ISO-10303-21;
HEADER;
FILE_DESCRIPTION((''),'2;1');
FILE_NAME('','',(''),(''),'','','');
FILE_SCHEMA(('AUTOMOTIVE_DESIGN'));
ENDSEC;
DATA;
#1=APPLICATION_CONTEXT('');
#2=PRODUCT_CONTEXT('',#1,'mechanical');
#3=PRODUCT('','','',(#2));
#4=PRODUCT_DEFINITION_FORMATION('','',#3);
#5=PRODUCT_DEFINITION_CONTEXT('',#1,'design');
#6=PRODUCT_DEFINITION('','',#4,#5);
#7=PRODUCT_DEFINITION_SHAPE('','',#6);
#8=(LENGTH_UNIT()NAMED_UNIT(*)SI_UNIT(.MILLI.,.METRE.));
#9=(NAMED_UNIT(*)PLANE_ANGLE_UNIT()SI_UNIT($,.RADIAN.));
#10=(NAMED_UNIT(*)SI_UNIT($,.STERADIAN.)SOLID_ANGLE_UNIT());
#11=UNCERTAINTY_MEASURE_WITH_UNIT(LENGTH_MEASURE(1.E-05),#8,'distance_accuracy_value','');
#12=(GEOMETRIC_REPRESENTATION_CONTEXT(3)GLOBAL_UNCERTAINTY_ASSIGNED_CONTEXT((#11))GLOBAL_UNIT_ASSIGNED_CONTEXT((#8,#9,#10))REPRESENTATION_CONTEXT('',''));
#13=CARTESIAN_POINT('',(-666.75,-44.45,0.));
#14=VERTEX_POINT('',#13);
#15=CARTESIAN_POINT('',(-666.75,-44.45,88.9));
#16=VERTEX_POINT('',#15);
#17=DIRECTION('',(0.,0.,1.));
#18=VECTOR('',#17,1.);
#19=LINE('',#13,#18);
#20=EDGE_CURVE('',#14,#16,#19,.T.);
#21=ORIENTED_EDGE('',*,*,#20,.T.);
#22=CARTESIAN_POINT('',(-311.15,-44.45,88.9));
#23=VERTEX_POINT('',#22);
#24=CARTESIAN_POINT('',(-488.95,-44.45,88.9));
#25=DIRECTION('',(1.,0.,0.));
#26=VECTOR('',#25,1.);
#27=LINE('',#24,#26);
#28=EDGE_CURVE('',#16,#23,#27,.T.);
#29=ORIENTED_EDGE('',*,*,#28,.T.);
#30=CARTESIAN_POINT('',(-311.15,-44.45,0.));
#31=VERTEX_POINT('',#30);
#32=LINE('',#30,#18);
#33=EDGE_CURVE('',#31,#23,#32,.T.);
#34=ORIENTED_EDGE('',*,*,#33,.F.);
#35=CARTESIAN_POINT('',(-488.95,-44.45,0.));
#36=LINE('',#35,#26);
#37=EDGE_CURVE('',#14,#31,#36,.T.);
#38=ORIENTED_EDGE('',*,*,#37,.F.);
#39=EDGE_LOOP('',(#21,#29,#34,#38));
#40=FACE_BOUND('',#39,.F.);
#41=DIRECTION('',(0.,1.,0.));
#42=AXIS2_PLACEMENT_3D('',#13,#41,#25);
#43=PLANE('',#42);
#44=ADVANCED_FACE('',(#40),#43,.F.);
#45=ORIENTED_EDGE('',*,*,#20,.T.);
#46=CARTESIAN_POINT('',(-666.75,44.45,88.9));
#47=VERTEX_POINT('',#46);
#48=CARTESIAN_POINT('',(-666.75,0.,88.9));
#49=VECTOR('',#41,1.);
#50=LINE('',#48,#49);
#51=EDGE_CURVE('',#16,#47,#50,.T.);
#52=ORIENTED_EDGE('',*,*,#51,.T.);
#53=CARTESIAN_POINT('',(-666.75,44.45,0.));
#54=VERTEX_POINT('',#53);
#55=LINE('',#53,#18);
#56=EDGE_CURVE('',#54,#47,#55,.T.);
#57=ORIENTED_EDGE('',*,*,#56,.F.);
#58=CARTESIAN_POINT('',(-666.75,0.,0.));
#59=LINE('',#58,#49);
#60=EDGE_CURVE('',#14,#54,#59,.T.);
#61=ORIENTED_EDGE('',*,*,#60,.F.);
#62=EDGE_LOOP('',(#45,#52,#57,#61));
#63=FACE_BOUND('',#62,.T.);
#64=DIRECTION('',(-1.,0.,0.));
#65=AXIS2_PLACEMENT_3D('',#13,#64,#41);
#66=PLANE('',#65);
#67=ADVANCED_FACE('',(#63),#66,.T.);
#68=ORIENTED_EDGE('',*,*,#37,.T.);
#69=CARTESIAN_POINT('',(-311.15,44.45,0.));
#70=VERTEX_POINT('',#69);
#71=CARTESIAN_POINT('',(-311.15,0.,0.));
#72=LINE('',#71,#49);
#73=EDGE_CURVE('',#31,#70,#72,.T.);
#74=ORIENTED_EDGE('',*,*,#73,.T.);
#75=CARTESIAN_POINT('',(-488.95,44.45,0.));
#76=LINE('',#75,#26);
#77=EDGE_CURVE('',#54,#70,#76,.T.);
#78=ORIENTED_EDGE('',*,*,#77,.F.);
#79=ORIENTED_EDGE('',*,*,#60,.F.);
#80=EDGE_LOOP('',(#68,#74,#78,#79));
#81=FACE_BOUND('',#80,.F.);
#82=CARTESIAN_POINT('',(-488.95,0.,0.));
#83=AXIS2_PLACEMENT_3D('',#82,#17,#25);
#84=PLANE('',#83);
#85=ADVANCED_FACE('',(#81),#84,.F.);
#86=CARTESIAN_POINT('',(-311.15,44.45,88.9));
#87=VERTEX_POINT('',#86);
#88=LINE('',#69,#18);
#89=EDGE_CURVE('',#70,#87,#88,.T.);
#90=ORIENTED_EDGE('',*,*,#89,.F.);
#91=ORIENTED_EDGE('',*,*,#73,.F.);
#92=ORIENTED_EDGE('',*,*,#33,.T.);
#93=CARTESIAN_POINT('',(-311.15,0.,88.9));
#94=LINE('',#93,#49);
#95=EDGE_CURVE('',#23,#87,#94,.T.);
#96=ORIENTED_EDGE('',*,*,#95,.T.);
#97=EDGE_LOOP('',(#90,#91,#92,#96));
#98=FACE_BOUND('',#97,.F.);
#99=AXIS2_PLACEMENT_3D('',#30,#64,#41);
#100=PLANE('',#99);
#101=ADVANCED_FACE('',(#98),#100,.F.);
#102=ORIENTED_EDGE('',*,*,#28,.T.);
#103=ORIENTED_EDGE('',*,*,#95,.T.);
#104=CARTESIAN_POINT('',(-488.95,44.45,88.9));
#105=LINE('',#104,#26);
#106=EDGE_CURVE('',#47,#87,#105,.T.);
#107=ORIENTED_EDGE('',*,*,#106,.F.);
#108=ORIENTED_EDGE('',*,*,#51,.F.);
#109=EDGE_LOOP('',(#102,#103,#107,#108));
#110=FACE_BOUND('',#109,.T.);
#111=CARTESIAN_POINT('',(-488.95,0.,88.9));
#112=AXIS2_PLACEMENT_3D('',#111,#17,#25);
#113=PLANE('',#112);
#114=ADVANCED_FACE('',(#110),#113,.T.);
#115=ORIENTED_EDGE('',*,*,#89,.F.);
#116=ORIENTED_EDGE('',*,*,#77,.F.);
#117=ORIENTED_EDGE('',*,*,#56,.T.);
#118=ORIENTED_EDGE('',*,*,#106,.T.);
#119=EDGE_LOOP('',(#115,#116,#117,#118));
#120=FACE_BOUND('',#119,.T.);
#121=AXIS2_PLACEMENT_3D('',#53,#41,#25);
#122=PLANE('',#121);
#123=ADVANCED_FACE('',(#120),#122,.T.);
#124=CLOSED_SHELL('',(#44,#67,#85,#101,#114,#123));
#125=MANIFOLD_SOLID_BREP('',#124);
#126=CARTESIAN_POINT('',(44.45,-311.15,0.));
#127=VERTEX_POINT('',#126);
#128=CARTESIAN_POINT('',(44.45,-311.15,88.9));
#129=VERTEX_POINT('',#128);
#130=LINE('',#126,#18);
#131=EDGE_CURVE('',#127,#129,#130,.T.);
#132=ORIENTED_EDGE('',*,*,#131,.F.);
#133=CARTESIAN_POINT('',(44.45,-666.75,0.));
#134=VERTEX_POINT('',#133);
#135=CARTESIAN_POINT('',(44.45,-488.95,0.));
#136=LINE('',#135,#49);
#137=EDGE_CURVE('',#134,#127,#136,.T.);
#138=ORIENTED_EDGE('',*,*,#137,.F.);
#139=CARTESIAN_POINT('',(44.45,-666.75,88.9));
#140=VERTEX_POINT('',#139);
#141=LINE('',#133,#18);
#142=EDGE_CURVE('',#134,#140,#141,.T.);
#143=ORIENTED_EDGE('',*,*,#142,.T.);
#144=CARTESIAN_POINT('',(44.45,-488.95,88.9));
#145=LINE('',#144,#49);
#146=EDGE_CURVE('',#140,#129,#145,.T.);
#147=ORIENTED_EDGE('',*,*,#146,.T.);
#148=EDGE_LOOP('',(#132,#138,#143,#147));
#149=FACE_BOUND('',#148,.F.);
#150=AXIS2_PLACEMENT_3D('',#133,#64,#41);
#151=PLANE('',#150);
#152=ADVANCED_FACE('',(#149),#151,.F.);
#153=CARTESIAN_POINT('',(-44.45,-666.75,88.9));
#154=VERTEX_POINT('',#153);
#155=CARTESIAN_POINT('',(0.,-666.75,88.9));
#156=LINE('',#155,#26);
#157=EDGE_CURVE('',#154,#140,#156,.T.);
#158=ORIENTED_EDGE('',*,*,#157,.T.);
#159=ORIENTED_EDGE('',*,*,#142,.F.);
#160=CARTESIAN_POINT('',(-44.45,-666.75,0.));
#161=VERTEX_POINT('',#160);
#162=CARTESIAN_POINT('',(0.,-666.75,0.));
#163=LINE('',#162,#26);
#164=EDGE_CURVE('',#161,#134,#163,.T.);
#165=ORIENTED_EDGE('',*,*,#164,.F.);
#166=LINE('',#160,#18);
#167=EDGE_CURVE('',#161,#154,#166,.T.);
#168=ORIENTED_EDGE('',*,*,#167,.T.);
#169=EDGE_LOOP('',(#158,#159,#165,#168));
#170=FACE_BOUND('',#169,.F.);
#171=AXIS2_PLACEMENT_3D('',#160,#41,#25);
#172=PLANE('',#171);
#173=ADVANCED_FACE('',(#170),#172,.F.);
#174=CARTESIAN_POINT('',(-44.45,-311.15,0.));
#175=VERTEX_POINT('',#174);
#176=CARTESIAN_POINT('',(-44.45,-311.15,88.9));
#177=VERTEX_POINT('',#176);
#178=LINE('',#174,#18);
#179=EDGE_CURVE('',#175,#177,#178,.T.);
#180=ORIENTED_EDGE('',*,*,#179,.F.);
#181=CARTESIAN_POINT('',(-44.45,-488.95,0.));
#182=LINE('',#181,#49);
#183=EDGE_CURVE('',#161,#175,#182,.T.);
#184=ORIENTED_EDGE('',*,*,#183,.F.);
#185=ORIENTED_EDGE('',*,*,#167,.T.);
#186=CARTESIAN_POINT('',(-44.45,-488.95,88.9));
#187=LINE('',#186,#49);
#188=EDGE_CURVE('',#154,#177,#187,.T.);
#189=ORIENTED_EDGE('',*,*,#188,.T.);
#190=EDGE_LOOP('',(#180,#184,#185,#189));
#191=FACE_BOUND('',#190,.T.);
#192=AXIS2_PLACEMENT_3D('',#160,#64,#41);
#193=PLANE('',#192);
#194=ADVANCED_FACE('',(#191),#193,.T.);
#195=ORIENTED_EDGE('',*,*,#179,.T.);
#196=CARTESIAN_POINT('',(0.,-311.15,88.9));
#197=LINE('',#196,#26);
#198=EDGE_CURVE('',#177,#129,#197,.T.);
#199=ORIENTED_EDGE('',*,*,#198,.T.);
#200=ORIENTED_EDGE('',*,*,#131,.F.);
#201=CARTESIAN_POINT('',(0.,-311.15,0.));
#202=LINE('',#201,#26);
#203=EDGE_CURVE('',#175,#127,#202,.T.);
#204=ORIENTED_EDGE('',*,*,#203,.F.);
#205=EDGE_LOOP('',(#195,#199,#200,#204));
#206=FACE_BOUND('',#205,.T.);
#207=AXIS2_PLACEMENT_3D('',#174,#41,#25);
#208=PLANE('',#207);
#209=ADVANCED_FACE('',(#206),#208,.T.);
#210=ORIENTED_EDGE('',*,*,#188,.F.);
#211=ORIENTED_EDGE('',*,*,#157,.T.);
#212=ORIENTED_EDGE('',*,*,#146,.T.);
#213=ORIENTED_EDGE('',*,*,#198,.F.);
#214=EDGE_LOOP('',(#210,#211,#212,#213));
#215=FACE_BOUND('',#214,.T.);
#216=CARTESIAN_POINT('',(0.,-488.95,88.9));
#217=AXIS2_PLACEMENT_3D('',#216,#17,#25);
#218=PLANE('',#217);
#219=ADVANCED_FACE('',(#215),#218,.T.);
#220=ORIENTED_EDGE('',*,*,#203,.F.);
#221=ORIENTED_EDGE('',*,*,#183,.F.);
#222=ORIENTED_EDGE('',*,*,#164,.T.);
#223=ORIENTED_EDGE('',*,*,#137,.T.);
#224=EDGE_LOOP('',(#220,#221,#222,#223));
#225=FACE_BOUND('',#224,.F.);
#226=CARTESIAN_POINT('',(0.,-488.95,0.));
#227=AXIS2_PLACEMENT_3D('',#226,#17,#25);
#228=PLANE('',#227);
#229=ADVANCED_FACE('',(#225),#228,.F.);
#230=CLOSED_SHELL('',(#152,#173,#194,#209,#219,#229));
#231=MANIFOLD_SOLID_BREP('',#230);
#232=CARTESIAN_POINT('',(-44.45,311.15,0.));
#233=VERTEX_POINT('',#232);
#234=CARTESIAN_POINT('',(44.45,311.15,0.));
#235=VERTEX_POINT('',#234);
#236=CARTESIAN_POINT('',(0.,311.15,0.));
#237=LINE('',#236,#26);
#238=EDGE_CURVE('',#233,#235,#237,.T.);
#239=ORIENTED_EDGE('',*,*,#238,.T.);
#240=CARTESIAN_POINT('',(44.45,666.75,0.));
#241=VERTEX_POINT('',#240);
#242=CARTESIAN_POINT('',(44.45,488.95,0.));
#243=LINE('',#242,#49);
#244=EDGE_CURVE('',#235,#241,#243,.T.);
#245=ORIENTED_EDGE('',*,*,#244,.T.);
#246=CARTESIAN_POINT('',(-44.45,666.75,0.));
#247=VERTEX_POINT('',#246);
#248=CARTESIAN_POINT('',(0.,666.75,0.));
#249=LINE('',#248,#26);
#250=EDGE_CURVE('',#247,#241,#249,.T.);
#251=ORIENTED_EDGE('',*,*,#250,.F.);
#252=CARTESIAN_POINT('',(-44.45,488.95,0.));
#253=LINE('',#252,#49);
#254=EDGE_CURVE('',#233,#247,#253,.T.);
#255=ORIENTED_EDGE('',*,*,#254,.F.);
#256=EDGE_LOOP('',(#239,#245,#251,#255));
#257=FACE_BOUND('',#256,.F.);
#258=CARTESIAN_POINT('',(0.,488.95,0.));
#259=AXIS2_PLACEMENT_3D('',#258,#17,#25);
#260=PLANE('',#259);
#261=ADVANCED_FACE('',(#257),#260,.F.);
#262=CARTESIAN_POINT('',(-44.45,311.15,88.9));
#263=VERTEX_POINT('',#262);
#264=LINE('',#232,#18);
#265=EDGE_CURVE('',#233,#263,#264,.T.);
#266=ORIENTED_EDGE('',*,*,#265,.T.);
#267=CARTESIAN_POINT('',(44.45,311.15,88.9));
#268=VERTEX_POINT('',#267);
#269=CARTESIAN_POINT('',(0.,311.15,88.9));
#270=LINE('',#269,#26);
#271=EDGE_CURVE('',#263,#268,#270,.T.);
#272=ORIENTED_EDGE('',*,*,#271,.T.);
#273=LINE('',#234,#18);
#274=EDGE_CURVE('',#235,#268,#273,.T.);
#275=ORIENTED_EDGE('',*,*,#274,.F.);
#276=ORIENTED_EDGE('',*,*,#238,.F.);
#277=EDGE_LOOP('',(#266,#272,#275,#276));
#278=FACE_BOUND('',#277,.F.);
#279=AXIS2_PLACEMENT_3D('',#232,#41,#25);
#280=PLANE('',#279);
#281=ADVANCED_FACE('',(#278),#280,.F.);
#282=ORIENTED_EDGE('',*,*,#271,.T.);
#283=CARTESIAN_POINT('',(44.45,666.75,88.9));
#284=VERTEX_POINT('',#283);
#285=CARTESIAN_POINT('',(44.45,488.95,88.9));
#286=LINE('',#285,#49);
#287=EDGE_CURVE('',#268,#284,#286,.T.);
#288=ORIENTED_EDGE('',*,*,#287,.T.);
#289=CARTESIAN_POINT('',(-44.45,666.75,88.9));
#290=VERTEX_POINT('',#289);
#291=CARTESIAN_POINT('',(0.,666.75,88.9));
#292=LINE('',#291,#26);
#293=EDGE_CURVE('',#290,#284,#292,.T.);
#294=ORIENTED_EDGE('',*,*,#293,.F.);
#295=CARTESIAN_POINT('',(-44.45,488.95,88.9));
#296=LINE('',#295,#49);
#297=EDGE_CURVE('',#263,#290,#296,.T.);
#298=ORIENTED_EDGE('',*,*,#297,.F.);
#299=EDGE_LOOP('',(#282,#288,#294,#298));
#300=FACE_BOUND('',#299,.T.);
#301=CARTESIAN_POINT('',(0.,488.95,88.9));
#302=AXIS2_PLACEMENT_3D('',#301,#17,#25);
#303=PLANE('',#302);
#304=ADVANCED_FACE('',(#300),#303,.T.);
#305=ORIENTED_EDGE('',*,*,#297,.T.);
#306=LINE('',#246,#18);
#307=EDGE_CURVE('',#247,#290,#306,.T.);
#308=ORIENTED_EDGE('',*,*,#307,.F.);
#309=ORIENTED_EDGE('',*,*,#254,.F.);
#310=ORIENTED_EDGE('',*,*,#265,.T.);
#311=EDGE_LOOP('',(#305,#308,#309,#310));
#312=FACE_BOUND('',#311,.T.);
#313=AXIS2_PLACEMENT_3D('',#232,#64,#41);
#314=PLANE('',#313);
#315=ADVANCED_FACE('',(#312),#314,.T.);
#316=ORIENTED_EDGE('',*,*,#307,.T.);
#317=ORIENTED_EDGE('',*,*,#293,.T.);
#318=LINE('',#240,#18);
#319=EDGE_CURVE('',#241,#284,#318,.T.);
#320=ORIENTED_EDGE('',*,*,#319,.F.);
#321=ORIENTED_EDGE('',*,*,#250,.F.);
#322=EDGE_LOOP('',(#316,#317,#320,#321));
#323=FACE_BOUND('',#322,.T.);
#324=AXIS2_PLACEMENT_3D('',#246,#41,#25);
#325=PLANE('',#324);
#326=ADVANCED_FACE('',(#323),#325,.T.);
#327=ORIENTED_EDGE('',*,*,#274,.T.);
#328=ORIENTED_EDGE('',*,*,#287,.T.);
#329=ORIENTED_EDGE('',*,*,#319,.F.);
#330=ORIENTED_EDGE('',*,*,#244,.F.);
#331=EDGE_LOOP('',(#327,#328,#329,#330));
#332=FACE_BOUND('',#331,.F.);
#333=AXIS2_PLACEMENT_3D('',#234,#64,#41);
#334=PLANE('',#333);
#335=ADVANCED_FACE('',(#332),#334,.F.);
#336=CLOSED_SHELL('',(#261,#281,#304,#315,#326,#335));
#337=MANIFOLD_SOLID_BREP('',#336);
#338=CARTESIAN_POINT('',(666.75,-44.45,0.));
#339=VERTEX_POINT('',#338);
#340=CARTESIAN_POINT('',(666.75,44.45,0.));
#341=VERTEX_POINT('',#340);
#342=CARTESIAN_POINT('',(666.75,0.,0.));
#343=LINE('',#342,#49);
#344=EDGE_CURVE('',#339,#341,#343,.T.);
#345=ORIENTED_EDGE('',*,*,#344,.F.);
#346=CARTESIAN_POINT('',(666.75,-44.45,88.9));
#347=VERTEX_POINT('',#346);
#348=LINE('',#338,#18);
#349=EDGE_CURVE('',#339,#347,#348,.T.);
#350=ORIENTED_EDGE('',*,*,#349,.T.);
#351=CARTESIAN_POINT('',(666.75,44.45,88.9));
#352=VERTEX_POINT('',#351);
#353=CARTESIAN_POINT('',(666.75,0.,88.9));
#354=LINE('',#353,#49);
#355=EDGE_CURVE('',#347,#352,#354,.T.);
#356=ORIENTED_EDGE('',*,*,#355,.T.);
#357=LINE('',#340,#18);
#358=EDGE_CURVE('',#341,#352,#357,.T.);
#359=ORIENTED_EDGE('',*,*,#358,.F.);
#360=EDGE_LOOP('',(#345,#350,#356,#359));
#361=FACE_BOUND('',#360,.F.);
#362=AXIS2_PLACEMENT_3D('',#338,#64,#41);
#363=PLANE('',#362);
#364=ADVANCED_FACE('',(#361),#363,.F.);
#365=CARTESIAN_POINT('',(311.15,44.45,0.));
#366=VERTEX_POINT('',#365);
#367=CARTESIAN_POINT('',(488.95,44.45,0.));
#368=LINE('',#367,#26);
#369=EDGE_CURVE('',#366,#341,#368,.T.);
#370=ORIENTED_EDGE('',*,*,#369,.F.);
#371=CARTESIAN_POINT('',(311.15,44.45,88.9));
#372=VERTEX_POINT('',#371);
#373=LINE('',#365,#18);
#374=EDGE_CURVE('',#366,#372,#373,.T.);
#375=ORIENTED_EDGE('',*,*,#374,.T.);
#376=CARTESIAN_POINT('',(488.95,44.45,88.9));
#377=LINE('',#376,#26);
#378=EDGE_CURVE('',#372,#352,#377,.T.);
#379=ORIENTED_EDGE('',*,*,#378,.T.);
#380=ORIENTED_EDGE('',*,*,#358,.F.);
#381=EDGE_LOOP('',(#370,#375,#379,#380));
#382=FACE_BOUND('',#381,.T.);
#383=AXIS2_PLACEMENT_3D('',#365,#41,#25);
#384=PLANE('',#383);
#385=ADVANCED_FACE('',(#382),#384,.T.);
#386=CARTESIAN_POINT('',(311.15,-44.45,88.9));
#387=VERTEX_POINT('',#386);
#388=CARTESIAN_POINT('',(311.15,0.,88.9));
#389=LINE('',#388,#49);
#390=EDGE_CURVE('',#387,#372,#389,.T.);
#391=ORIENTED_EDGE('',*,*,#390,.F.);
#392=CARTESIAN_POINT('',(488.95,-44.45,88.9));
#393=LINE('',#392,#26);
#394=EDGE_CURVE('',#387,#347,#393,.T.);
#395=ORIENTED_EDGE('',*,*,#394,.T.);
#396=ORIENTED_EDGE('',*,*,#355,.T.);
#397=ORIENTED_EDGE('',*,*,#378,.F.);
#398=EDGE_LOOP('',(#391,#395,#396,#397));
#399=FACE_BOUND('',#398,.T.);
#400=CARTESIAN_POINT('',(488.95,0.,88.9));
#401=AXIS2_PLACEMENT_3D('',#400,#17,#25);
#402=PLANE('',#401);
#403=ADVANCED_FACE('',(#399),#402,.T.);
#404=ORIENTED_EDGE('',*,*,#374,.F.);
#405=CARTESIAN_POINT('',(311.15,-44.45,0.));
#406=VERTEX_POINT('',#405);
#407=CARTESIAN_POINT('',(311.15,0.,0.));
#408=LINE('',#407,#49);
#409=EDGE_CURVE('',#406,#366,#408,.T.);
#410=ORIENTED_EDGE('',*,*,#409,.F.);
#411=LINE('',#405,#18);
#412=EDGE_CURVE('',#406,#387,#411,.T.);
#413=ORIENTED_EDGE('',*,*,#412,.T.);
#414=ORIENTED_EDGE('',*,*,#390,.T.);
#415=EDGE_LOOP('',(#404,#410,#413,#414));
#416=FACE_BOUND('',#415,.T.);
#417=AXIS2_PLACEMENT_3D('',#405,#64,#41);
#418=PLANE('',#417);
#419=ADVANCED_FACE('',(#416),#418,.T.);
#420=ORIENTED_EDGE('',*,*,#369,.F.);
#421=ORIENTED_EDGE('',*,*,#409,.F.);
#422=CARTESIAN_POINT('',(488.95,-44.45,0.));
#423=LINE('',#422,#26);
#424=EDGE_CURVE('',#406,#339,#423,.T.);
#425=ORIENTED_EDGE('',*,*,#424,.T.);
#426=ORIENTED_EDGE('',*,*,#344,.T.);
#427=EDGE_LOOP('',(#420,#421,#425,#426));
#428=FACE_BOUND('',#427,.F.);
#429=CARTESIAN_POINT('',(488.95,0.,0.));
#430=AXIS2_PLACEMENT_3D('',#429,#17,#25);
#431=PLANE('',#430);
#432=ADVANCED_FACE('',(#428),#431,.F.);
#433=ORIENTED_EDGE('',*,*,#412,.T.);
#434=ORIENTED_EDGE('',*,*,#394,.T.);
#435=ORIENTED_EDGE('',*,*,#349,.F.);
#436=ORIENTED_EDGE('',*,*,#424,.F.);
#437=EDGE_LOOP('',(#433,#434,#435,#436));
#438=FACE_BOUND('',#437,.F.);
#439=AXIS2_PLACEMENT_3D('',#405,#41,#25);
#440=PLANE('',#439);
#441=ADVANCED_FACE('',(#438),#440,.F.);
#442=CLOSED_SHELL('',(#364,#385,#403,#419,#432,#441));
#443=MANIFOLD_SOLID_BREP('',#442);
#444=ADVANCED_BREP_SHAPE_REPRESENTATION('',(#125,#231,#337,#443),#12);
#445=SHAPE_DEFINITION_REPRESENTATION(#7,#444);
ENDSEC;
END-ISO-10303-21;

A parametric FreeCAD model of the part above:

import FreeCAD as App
import Part
import Sketcher
Q = App.Units.Quantity

doc = App.newDocument("Part")
body = doc.addObject("PartDesign::Body", "Body")
body.AllowCompound = True

# Sketch on XY plane
sketch1 = doc.addObject("Sketcher::SketchObject", "Sketch")
body.addObject(sketch1)
sketch1.AttachmentSupport = (doc.XY_Plane, [""])
sketch1.MapMode = "FlatFace"
sketch1.addGeometry([
    Part.LineSegment(App.Vector(-667, 44, 0), App.Vector(-667, -44, 0)),  # 0
    Part.LineSegment(App.Vector(-667, -44, 0), App.Vector(-311, -44, 0)),  # 1
    Part.LineSegment(App.Vector(-311, -44, 0), App.Vector(-311, 44, 0)),  # 2
    Part.LineSegment(App.Vector(-311, 44, 0), App.Vector(-667, 44, 0)),  # 3
    Part.LineSegment(App.Vector(-44, 667, 0), App.Vector(-44, 311, 0)),  # 4
    Part.LineSegment(App.Vector(-44, 311, 0), App.Vector(44, 311, 0)),  # 5
    Part.LineSegment(App.Vector(44, 311, 0), App.Vector(44, 667, 0)),  # 6
    Part.LineSegment(App.Vector(44, 667, 0), App.Vector(-44, 667, 0)),  # 7
    Part.LineSegment(App.Vector(311, 44, 0), App.Vector(311, -44, 0)),  # 8
    Part.LineSegment(App.Vector(311, -44, 0), App.Vector(667, -44, 0)),  # 9
    Part.LineSegment(App.Vector(667, -44, 0), App.Vector(667, 44, 0)),  # 10
    Part.LineSegment(App.Vector(667, 44, 0), App.Vector(311, 44, 0)),  # 11
    Part.LineSegment(App.Vector(-44, -311, 0), App.Vector(-44, -667, 0)),  # 12
    Part.LineSegment(App.Vector(-44, -667, 0), App.Vector(44, -667, 0)),  # 13
    Part.LineSegment(App.Vector(44, -667, 0), App.Vector(44, -311, 0)),  # 14
    Part.LineSegment(App.Vector(44, -311, 0), App.Vector(-44, -311, 0)),  # 15
], False)
sketch1.addConstraint([
    Sketcher.Constraint("Coincident", 0, 2, 1, 1),
    Sketcher.Constraint("Coincident", 1, 2, 2, 1),
    Sketcher.Constraint("Coincident", 2, 2, 3, 1),
    Sketcher.Constraint("Coincident", 3, 2, 0, 1),
    Sketcher.Constraint("Coincident", 4, 2, 5, 1),
    Sketcher.Constraint("Coincident", 5, 2, 6, 1),
    Sketcher.Constraint("Coincident", 6, 2, 7, 1),
    Sketcher.Constraint("Coincident", 7, 2, 4, 1),
    Sketcher.Constraint("Coincident", 8, 2, 9, 1),
    Sketcher.Constraint("Coincident", 9, 2, 10, 1),
    Sketcher.Constraint("Coincident", 10, 2, 11, 1),
    Sketcher.Constraint("Coincident", 11, 2, 8, 1),
    Sketcher.Constraint("Coincident", 12, 2, 13, 1),
    Sketcher.Constraint("Coincident", 13, 2, 14, 1),
    Sketcher.Constraint("Coincident", 14, 2, 15, 1),
    Sketcher.Constraint("Coincident", 15, 2, 12, 1),
    Sketcher.Constraint("Vertical", 0),
    Sketcher.Constraint("Horizontal", 1),
    Sketcher.Constraint("Vertical", 2),
    Sketcher.Constraint("Horizontal", 3),
    Sketcher.Constraint("Vertical", 4),
    Sketcher.Constraint("Horizontal", 5),
    Sketcher.Constraint("Vertical", 6),
    Sketcher.Constraint("Horizontal", 7),
    Sketcher.Constraint("Vertical", 8),
    Sketcher.Constraint("Horizontal", 9),
    Sketcher.Constraint("Vertical", 10),
    Sketcher.Constraint("Horizontal", 11),
    Sketcher.Constraint("Vertical", 12),
    Sketcher.Constraint("Horizontal", 13),
    Sketcher.Constraint("Vertical", 14),
    Sketcher.Constraint("Horizontal", 15),
    Sketcher.Constraint("Symmetric", 2, 2, 8, 2, -1, 1),
    Sketcher.Constraint("Symmetric", 0, 2, 10, 2, -1, 1),
    Sketcher.Constraint("Symmetric", 6, 2, 12, 2, -1, 1),
    Sketcher.Constraint("Symmetric", 4, 2, 14, 2, -1, 1),
    Sketcher.Constraint("Horizontal", 1, 2, 8, 2),
    Sketcher.Constraint("Vertical", 7, 2, 12, 2),
    Sketcher.Constraint("Equal", 15, 0),
    Sketcher.Constraint("Equal", 11, 4),
    Sketcher.Constraint("DistanceX", 1, 1, 1, 2, Q("14 in")),
    Sketcher.Constraint("DistanceX", 5, 1, 5, 2, Q("3.5 in")),
    Sketcher.Constraint("DistanceY", 1, 2, 4, 2, Q("14 in")),
    Sketcher.Constraint("DistanceX", 2, 2, 5, 2, Q("14 in")),
])
pad1 = doc.addObject("PartDesign::Pad", "Pad")
body.addObject(pad1)
pad1.Profile = sketch1
pad1.Length = Q("3.5 in")

doc.recompute()
